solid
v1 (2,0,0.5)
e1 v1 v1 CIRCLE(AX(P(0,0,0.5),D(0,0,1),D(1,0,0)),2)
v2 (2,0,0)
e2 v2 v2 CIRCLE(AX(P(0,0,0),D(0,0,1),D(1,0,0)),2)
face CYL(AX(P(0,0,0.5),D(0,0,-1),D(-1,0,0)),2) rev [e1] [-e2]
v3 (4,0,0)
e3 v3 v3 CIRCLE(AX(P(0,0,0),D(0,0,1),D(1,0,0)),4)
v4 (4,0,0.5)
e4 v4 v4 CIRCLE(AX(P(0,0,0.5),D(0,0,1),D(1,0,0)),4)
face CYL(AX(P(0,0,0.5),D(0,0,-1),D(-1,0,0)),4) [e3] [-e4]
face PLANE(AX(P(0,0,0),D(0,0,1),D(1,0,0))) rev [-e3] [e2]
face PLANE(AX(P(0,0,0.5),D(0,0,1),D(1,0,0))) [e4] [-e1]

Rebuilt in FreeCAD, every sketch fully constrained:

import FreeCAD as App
import Part
import Sketcher
from FreeCAD import Vector

doc = App.newDocument("Part")
body = doc.addObject("PartDesign::Body", "Body")

sketch1 = body.newObject("Sketcher::SketchObject", "Sketch")
sketch1.AttachmentSupport = (doc.getObject("XY_Plane"), [""])
sketch1.MapMode = "FlatFace"
sketch1.addGeometry(Part.Circle(Vector(0, 0, 0), Vector(0, 0, 1), 4), False)
sketch1.addGeometry(Part.Circle(Vector(0, 0, 0), Vector(0, 0, 1), 2), False)
sketch1.addConstraint(Sketcher.Constraint("Coincident", 0, 3, -1, 1))
sketch1.addConstraint(Sketcher.Constraint("Coincident", 1, 3, -1, 1))
sketch1.addConstraint(Sketcher.Constraint("Diameter", 0, 8.0))
sketch1.addConstraint(Sketcher.Constraint("Diameter", 1, 4.0))
pad1 = body.newObject("PartDesign::Pad", "Pad")
pad1.Profile = sketch1
pad1.Length = 0.5

doc.recompute()
